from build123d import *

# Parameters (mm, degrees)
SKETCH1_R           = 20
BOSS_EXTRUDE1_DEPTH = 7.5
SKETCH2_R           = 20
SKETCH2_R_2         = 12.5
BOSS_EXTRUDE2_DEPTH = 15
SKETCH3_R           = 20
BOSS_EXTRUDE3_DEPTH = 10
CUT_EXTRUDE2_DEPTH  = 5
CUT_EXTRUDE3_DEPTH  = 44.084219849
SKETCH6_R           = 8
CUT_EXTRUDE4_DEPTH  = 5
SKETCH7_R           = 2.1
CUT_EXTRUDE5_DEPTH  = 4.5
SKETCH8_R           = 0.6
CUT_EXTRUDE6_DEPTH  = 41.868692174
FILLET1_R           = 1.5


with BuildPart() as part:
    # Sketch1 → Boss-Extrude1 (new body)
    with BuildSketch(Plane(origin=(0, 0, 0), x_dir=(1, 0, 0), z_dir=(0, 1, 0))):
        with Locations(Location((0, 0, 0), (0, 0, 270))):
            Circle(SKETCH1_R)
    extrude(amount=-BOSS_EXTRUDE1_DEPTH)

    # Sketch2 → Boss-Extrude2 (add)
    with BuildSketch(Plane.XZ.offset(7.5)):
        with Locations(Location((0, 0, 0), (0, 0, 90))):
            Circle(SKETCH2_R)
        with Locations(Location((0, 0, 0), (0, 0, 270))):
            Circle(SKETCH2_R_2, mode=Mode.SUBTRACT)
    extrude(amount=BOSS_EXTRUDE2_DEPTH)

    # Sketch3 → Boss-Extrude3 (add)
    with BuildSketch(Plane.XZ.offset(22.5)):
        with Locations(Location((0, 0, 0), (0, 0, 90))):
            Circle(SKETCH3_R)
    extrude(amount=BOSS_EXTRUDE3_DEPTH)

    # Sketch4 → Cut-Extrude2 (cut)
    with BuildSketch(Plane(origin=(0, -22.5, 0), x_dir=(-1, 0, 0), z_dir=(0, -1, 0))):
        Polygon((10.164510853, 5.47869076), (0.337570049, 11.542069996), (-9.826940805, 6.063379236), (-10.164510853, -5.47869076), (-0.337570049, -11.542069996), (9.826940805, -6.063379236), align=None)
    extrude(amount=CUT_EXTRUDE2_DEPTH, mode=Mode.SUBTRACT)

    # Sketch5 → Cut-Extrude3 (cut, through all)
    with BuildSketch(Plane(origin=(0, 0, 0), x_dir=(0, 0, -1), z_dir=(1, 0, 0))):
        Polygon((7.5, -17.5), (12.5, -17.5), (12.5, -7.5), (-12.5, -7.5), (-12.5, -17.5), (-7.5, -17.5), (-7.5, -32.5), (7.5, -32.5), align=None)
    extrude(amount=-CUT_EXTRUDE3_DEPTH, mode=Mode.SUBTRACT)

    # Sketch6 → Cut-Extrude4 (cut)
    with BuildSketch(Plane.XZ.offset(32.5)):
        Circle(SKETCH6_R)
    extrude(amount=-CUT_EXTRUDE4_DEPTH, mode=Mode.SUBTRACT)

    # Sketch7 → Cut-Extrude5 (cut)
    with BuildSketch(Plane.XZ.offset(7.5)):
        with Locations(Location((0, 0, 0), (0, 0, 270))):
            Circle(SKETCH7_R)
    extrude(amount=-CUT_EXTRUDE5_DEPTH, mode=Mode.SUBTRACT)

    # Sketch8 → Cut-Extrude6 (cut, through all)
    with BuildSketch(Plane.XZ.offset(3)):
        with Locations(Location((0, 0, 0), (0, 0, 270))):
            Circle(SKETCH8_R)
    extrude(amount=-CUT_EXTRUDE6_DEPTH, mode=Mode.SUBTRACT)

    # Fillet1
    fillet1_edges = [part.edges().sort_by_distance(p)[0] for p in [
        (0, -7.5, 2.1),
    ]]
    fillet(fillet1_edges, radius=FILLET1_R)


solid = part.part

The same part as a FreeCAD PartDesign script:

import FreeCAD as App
import Part
import Sketcher

V = App.Vector


def edges_at(feature, points):
    """Names of the edges that pass closest to the given points."""
    edges = feature.Shape.Edges
    near = lambda p: min(range(len(edges)), key=lambda i: edges[i].distToShape(Part.Vertex(*p))[0])
    return sorted({f"Edge{near(p) + 1}" for p in points})


def add_polygon(sketch, points):
    """Adds a closed chain of lines whose ends are joined by coincident constraints."""
    first, n = sketch.GeometryCount, len(points)
    for a, b in zip(points, points[1:] + points[:1]):
        sketch.addGeometry(Part.LineSegment(App.Vector(*a, 0), App.Vector(*b, 0)), False)
    for i in range(n):
        sketch.addConstraint(Sketcher.Constraint("Coincident", first + i, 2, first + (i + 1) % n, 1))

doc = App.newDocument("Part")
body = doc.addObject("PartDesign::Body", "Body")

# Sketch on XZ plane
sketch1 = body.newObject("Sketcher::SketchObject", "Sketch")
sketch1.AttachmentSupport = (doc.getObject("XZ_Plane"), [""])
sketch1.MapMode = "FlatFace"
sketch1.addGeometry(Part.Circle(V(0, 0, 0), V(0, 0, 1), 20), False)
sketch1.addConstraint(Sketcher.Constraint("Coincident", 0, 3, -1, 1))
sketch1.addConstraint(Sketcher.Constraint("Diameter", 0, 40.0))
pad1 = body.newObject("PartDesign::Pad", "Pad")
pad1.Profile = sketch1
pad1.Length = 7.5

# Sketch on XZ plane
sketch2 = body.newObject("Sketcher::SketchObject", "Sketch001")
sketch2.AttachmentSupport = (doc.getObject("XZ_Plane"), [""])
sketch2.MapMode = "FlatFace"
sketch2.AttachmentOffset = App.Placement(V(0, 0, 7.5), App.Rotation())
sketch2.addGeometry(Part.Circle(V(0, 0, 0), V(0, 0, 1), 20), False)
sketch2.addGeometry(Part.Circle(V(0, 0, 0), V(0, 0, 1), 12.5), False)
sketch2.addConstraint(Sketcher.Constraint("Coincident", 0, 3, -1, 1))
sketch2.addConstraint(Sketcher.Constraint("Coincident", 1, 3, -1, 1))
sketch2.addConstraint(Sketcher.Constraint("Diameter", 0, 40.0))
sketch2.addConstraint(Sketcher.Constraint("Diameter", 1, 25.0))
pad2 = body.newObject("PartDesign::Pad", "Pad001")
pad2.Profile = sketch2
pad2.Length = 15

# Sketch on XZ plane
sketch3 = body.newObject("Sketcher::SketchObject", "Sketch002")
sketch3.AttachmentSupport = (doc.getObject("XZ_Plane"), [""])
sketch3.MapMode = "FlatFace"
sketch3.AttachmentOffset = App.Placement(V(0, 0, 22.5), App.Rotation())
sketch3.addGeometry(Part.Circle(V(0, 0, 0), V(0, 0, 1), 20), False)
sketch3.addConstraint(Sketcher.Constraint("Coincident", 0, 3, -1, 1))
sketch3.addConstraint(Sketcher.Constraint("Diameter", 0, 40.0))
pad3 = body.newObject("PartDesign::Pad", "Pad002")
pad3.Profile = sketch3
pad3.Length = 10

# Sketch on XZ plane
sketch4 = body.newObject("Sketcher::SketchObject", "Sketch003")
sketch4.AttachmentSupport = (doc.getObject("XZ_Plane"), [""])
sketch4.MapMode = "FlatFace"
sketch4.AttachmentOffset = App.Placement(V(0, 0, 22.5), App.Rotation())
add_polygon(sketch4, [(-10.164511, -5.478691), (-0.33757, -11.54207), (9.826941, -6.063379), (10.164511, 5.478691), (0.33757, 11.54207), (-9.826941, 6.063379)])  # lines 0-5
sketch4.addConstraint(Sketcher.Constraint("Symmetric", 0, 2, 3, 2, -1, 1))
sketch4.addConstraint(Sketcher.Constraint("Symmetric", 1, 2, 4, 2, -1, 1))
sketch4.addConstraint(Sketcher.Constraint("Symmetric", 2, 2, 5, 2, -1, 1))
sketch4.addConstraint(Sketcher.Constraint("Equal", 0, 1))
sketch4.addConstraint(Sketcher.Constraint("Equal", 1, 2))
sketch4.addConstraint(Sketcher.Constraint("DistanceX", 0, 2, -1, 1, 0.33757))
sketch4.addConstraint(Sketcher.Constraint("DistanceY", 0, 2, -1, 1, 11.54207))
sketch4.addConstraint(Sketcher.Constraint("DistanceX", -1, 1, 1, 2, 9.826941))
sketch4.addConstraint(Sketcher.Constraint("DistanceY", 1, 2, -1, 1, 6.063379))
pocket1 = body.newObject("PartDesign::Pocket", "Pocket")
pocket1.Profile = sketch4
pocket1.Length = 5
pocket1.Reversed = True

# Sketch on YZ plane
sketch5 = body.newObject("Sketcher::SketchObject", "Sketch004")
sketch5.AttachmentSupport = (doc.getObject("YZ_Plane"), [""])
sketch5.MapMode = "FlatFace"
add_polygon(sketch5, [(-17.5, -7.5), (-17.5, -12.5), (-7.5, -12.5), (-7.5, 12.5), (-17.5, 12.5), (-17.5, 7.5), (-32.5, 7.5), (-32.5, -7.5)])  # lines 0-7
sketch5.addConstraint(Sketcher.Constraint("Vertical", 0))
sketch5.addConstraint(Sketcher.Constraint("Horizontal", 1))
sketch5.addConstraint(Sketcher.Constraint("Vertical", 2))
sketch5.addConstraint(Sketcher.Constraint("Horizontal", 3))
sketch5.addConstraint(Sketcher.Constraint("Vertical", 4))
sketch5.addConstraint(Sketcher.Constraint("Horizontal", 5))
sketch5.addConstraint(Sketcher.Constraint("Vertical", 6))
sketch5.addConstraint(Sketcher.Constraint("Horizontal", 7))
sketch5.addConstraint(Sketcher.Constraint("Symmetric", 0, 2, 3, 2, -1))
sketch5.addConstraint(Sketcher.Constraint("Equal", 0, 4))
sketch5.addConstraint(Sketcher.Constraint("Equal", 7, 6))
sketch5.addConstraint(Sketcher.Constraint("DistanceX", 1, 1, 1, 2, 10.0))
sketch5.addConstraint(Sketcher.Constraint("DistanceX", 5, 2, 5, 1, 15.0))
sketch5.addConstraint(Sketcher.Constraint("DistanceY", 0, 2, 0, 1, 5.0))
sketch5.addConstraint(Sketcher.Constraint("DistanceX", 0, 2, -1, 1, 17.5))
pocket2 = body.newObject("PartDesign::Pocket", "Pocket001")
pocket2.Profile = sketch5
pocket2.Type = "ThroughAll"

# Sketch on XZ plane
sketch6 = body.newObject("Sketcher::SketchObject", "Sketch005")
sketch6.AttachmentSupport = (doc.getObject("XZ_Plane"), [""])
sketch6.MapMode = "FlatFace"
sketch6.AttachmentOffset = App.Placement(V(0, 0, 32.5), App.Rotation())
sketch6.addGeometry(Part.Circle(V(0, 0, 0), V(0, 0, 1), 8), False)
sketch6.addConstraint(Sketcher.Constraint("Coincident", 0, 3, -1, 1))
sketch6.addConstraint(Sketcher.Constraint("Diameter", 0, 16.0))
pocket3 = body.newObject("PartDesign::Pocket", "Pocket002")
pocket3.Profile = sketch6
pocket3.Length = 5

# Sketch on XZ plane
sketch7 = body.newObject("Sketcher::SketchObject", "Sketch006")
sketch7.AttachmentSupport = (doc.getObject("XZ_Plane"), [""])
sketch7.MapMode = "FlatFace"
sketch7.AttachmentOffset = App.Placement(V(0, 0, 7.5), App.Rotation())
sketch7.addGeometry(Part.Circle(V(0, 0, 0), V(0, 0, 1), 2.1), False)
sketch7.addConstraint(Sketcher.Constraint("Coincident", 0, 3, -1, 1))
sketch7.addConstraint(Sketcher.Constraint("Diameter", 0, 4.2))
pocket4 = body.newObject("PartDesign::Pocket", "Pocket003")
pocket4.Profile = sketch7
pocket4.Length = 4.5

# Sketch on XZ plane
sketch8 = body.newObject("Sketcher::SketchObject", "Sketch007")
sketch8.AttachmentSupport = (doc.getObject("XZ_Plane"), [""])
sketch8.MapMode = "FlatFace"
sketch8.AttachmentOffset = App.Placement(V(0, 0, 3), App.Rotation())
sketch8.addGeometry(Part.Circle(V(0, 0, 0), V(0, 0, 1), 0.6), False)
sketch8.addConstraint(Sketcher.Constraint("Coincident", 0, 3, -1, 1))
sketch8.addConstraint(Sketcher.Constraint("Diameter", 0, 1.2))
pocket5 = body.newObject("PartDesign::Pocket", "Pocket004")
pocket5.Profile = sketch8
pocket5.Type = "ThroughAll"
doc.recompute()

fillet = body.newObject("PartDesign::Fillet", "Fillet")
fillet.Base = (pocket5, edges_at(pocket5, [(0, -7.5, 2.1)]))
fillet.Radius = 1.5

doc.recompute()
